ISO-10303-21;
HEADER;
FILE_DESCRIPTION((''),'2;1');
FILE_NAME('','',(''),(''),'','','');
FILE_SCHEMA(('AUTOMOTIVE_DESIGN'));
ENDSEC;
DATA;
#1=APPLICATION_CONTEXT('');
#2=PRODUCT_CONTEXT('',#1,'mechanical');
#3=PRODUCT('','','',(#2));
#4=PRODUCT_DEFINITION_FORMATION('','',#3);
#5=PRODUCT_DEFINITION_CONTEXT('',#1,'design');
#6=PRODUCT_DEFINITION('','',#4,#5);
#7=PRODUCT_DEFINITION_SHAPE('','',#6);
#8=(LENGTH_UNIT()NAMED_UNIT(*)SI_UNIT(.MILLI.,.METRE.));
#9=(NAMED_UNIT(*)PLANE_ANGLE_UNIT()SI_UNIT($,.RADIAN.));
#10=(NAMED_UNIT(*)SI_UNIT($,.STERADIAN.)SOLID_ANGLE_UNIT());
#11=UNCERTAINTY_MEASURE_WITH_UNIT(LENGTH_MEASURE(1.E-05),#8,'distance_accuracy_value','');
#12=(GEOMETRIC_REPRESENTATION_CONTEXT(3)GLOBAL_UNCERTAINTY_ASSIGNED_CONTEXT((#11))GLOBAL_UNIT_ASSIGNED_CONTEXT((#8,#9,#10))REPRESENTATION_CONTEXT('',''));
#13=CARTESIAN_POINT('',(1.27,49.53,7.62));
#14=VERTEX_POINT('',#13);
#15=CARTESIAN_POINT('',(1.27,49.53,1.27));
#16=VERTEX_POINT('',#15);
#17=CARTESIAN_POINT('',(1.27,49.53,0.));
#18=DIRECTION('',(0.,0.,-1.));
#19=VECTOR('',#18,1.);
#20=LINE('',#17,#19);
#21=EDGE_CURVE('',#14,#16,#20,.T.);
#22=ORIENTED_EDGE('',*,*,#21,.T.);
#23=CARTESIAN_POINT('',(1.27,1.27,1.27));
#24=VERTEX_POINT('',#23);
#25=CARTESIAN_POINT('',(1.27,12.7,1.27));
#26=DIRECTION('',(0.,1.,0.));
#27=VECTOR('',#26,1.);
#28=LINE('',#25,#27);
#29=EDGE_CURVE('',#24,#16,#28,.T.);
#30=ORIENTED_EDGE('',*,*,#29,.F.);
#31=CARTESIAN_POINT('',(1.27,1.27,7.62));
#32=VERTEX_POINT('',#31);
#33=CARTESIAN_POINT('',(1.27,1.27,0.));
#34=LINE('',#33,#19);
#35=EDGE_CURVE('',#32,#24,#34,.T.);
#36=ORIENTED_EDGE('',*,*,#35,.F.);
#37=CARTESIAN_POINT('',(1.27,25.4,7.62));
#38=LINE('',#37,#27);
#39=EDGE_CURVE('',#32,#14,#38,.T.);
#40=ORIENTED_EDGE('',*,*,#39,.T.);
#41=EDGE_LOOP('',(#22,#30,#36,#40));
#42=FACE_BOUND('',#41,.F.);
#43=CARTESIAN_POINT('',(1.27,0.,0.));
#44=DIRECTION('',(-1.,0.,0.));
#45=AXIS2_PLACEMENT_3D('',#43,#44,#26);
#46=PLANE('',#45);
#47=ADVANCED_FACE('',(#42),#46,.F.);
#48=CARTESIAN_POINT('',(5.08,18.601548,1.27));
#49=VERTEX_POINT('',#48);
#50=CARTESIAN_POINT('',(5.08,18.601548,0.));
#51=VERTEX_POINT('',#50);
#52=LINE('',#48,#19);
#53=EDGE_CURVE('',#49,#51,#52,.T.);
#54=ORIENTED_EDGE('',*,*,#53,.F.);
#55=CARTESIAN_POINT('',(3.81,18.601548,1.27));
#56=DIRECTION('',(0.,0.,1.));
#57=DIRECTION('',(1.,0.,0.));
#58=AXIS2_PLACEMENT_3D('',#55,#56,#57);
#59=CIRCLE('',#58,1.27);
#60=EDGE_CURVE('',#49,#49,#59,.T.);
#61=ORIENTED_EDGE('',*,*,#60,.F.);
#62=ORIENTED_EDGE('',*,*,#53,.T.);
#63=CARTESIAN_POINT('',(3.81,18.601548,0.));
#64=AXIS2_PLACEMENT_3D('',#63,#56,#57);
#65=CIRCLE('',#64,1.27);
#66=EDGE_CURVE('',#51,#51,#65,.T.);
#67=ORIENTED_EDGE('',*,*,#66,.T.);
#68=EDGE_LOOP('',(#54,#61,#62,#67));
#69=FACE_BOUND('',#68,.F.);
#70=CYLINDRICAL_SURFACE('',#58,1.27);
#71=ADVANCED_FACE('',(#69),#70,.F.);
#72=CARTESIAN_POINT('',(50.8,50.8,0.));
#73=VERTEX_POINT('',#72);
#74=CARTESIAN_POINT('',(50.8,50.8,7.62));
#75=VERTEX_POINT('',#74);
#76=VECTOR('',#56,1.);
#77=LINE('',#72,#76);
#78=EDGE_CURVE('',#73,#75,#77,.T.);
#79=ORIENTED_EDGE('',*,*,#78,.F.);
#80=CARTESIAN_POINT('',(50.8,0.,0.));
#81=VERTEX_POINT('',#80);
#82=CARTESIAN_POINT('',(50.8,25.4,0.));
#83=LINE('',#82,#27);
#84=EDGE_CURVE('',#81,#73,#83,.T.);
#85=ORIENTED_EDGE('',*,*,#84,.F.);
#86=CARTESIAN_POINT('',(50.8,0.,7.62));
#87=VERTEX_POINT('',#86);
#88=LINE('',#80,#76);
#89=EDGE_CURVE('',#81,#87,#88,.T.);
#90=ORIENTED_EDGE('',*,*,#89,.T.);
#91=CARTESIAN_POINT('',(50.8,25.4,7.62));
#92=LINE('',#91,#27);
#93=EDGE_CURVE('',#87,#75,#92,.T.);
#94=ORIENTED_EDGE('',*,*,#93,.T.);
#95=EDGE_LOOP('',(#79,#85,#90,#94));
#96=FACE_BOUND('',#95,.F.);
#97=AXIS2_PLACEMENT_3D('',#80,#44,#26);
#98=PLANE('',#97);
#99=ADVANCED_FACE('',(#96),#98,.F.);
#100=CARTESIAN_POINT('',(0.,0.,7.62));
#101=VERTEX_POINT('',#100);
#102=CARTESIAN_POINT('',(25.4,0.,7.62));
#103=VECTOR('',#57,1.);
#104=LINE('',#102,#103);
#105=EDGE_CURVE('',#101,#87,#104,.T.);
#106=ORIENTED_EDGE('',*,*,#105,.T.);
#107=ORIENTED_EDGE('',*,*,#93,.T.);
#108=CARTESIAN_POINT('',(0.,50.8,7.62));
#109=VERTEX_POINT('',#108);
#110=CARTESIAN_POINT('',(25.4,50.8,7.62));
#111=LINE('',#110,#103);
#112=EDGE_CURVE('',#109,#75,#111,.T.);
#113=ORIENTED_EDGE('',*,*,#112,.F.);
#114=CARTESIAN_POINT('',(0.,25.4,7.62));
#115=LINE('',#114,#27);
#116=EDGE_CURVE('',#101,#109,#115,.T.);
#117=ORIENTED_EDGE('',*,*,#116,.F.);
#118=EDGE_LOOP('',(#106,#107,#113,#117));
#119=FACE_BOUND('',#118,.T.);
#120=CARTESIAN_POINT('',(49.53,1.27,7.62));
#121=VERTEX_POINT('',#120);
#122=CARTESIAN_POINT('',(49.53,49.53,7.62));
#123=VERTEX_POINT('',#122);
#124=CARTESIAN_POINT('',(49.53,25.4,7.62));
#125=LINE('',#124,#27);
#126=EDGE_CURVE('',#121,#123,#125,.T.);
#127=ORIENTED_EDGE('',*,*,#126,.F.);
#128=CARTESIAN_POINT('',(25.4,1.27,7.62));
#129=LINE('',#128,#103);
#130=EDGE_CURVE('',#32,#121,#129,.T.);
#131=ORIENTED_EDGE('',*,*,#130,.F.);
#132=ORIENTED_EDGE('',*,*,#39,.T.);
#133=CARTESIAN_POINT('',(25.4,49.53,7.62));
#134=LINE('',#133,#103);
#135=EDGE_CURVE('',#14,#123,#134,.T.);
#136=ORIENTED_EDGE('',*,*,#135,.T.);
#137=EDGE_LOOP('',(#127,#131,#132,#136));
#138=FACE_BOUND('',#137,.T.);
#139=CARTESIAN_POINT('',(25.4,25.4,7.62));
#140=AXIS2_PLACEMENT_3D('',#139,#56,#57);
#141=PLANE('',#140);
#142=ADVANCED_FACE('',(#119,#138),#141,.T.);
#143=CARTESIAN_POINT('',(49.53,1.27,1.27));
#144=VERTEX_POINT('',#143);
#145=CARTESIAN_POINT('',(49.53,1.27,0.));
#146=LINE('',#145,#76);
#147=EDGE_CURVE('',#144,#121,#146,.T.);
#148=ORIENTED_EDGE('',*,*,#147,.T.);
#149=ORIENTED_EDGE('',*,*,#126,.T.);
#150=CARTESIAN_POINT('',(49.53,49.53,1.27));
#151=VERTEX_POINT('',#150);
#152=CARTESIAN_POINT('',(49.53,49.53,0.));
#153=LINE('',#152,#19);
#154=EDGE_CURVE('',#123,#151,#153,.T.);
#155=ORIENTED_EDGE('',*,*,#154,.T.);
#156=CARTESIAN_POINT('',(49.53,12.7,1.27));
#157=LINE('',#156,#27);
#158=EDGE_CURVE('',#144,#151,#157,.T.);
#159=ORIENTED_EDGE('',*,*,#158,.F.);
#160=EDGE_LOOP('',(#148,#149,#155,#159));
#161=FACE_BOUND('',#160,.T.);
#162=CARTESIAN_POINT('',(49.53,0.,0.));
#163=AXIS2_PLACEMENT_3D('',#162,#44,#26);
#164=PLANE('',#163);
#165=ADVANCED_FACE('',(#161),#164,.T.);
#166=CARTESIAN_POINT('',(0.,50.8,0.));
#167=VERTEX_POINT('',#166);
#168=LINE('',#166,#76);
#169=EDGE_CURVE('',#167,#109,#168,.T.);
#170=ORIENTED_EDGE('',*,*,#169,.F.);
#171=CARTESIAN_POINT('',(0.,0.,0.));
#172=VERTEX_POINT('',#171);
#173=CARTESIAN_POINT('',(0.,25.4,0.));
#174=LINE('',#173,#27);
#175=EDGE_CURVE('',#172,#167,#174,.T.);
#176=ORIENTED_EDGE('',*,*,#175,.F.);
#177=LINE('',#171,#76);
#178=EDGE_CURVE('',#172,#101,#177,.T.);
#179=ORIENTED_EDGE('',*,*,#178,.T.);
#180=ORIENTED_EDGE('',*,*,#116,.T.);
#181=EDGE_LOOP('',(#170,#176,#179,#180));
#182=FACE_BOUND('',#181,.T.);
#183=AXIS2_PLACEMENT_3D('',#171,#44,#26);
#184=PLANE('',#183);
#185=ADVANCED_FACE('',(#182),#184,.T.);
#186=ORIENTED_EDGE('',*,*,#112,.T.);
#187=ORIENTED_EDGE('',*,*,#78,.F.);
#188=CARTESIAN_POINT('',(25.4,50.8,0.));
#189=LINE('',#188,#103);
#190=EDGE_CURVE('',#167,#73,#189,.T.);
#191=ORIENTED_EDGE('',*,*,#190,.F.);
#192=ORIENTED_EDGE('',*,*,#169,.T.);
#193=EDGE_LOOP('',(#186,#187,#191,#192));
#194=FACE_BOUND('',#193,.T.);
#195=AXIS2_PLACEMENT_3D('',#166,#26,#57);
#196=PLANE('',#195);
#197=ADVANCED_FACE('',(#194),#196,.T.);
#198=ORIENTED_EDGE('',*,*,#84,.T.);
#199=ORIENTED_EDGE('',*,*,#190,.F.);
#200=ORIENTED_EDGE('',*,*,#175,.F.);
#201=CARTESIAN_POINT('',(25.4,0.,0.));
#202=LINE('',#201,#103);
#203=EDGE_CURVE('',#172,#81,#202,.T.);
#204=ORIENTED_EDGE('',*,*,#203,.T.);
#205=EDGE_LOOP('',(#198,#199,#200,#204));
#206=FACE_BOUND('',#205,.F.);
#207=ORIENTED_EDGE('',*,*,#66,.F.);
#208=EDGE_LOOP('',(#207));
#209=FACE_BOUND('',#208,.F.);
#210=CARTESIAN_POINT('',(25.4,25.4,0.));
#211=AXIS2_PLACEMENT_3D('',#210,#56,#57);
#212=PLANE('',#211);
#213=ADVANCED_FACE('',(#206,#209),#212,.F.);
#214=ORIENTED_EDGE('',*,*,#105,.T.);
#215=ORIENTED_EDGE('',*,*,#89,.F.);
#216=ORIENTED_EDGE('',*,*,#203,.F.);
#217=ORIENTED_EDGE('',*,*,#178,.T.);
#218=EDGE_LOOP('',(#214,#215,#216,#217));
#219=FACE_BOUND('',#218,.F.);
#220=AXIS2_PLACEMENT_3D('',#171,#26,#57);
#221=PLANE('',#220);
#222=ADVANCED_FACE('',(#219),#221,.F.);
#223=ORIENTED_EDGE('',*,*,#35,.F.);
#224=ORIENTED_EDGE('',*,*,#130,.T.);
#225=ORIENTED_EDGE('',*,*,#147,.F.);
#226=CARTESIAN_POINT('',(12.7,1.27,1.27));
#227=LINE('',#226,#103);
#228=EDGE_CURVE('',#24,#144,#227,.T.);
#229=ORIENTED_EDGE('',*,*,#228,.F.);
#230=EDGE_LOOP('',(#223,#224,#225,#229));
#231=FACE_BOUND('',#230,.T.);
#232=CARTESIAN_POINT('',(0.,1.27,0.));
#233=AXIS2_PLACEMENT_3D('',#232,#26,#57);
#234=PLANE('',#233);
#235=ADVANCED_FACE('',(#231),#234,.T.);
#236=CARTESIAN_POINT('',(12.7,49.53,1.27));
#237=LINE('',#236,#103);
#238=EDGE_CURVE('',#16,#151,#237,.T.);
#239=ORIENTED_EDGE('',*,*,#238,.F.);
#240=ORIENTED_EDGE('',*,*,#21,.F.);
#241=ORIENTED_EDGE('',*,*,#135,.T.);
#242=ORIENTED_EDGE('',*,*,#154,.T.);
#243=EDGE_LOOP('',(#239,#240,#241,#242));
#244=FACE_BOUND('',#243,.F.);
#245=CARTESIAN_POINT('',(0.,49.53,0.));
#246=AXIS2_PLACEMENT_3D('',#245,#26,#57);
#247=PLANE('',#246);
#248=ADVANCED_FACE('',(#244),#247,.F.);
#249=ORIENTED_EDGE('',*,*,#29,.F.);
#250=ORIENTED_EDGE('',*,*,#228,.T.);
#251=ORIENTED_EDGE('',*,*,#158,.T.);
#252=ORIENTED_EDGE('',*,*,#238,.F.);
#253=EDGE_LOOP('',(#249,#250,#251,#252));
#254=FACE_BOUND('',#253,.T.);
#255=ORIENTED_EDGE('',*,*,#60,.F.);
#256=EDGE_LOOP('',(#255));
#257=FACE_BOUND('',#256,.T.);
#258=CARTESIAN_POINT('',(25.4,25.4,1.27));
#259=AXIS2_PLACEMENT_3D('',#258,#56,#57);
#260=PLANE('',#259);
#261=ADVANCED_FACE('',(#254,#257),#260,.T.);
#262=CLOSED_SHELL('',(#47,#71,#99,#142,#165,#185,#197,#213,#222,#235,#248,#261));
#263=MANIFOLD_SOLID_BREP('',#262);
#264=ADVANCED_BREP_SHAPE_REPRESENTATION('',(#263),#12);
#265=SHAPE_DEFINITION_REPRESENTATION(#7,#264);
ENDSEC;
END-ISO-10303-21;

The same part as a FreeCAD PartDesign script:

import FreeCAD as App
import Part
import Sketcher
Q = App.Units.Quantity


def faces_at(feature, points):
    """Names of the faces that lie closest to the given points."""
    faces = feature.Shape.Faces
    near = lambda p: min(range(len(faces)), key=lambda i: faces[i].distToShape(Part.Vertex(*p))[0])
    return sorted({f"Face{near(p) + 1}" for p in points})

doc = App.newDocument("Part")
body = doc.addObject("PartDesign::Body", "Body")

# Sketch on XY plane
sketch1 = body.newObject("Sketcher::SketchObject", "Sketch")
sketch1.AttachmentSupport = (doc.getObject("XY_Plane"), [""])
sketch1.MapMode = "FlatFace"
sketch1.addGeometry(Part.LineSegment(App.Vector(0, 51, 0), App.Vector(0, 0, 0)), False)
sketch1.addGeometry(Part.LineSegment(App.Vector(0, 0, 0), App.Vector(51, 0, 0)), False)
sketch1.addGeometry(Part.LineSegment(App.Vector(51, 0, 0), App.Vector(51, 51, 0)), False)
sketch1.addGeometry(Part.LineSegment(App.Vector(51, 51, 0), App.Vector(0, 51, 0)), False)
sketch1.addConstraint(Sketcher.Constraint("Coincident", 0, 2, 1, 1))
sketch1.addConstraint(Sketcher.Constraint("Coincident", 1, 2, 2, 1))
sketch1.addConstraint(Sketcher.Constraint("Coincident", 2, 2, 3, 1))
sketch1.addConstraint(Sketcher.Constraint("Coincident", 3, 2, 0, 1))
sketch1.addConstraint(Sketcher.Constraint("Vertical", 0))
sketch1.addConstraint(Sketcher.Constraint("Horizontal", 1))
sketch1.addConstraint(Sketcher.Constraint("Vertical", 2))
sketch1.addConstraint(Sketcher.Constraint("Horizontal", 3))
sketch1.addConstraint(Sketcher.Constraint("Coincident", 0, 2, -1, 1))
sketch1.addConstraint(Sketcher.Constraint("Equal", 3, 0))
sketch1.addConstraint(Sketcher.Constraint("DistanceX", 1, 1, 1, 2, Q("2 in")))
pad1 = body.newObject("PartDesign::Pad", "Pad")
pad1.Profile = sketch1
pad1.Length = Q("0.3 in")
doc.recompute()

thickness = body.newObject("PartDesign::Thickness", "Thickness")
thickness.Base = (pad1, faces_at(pad1, [(25.4, 25.4, 7.62)]))
thickness.Value = Q("0.05 in")
thickness.Reversed = True
thickness.Join = "Arc"

# Sketch on XY plane
sketch2 = body.newObject("Sketcher::SketchObject", "Sketch001")
sketch2.AttachmentSupport = (doc.getObject("XY_Plane"), [""])
sketch2.MapMode = "FlatFace"
sketch2.AttachmentOffset = App.Placement(App.Vector(0, 0, 0.05 * 25.4), App.Rotation())
sketch2.addGeometry(Part.Circle(App.Vector(3.8, 18.6, 0), App.Vector(0, 0, 1), 1.3), False)
sketch2.addConstraint(Sketcher.Constraint("Diameter", 0, Q("0.1 in")))
sketch2.addConstraint(Sketcher.Constraint("DistanceX", -1, 1, 0, 3, Q("0.15 in")))
sketch2.addConstraint(Sketcher.Constraint("DistanceY", -1, 1, 0, 3, Q("18.601548 mm")))
pocket1 = body.newObject("PartDesign::Pocket", "Pocket")
pocket1.Profile = sketch2
pocket1.Length = Q("1 in")

doc.recompute()
